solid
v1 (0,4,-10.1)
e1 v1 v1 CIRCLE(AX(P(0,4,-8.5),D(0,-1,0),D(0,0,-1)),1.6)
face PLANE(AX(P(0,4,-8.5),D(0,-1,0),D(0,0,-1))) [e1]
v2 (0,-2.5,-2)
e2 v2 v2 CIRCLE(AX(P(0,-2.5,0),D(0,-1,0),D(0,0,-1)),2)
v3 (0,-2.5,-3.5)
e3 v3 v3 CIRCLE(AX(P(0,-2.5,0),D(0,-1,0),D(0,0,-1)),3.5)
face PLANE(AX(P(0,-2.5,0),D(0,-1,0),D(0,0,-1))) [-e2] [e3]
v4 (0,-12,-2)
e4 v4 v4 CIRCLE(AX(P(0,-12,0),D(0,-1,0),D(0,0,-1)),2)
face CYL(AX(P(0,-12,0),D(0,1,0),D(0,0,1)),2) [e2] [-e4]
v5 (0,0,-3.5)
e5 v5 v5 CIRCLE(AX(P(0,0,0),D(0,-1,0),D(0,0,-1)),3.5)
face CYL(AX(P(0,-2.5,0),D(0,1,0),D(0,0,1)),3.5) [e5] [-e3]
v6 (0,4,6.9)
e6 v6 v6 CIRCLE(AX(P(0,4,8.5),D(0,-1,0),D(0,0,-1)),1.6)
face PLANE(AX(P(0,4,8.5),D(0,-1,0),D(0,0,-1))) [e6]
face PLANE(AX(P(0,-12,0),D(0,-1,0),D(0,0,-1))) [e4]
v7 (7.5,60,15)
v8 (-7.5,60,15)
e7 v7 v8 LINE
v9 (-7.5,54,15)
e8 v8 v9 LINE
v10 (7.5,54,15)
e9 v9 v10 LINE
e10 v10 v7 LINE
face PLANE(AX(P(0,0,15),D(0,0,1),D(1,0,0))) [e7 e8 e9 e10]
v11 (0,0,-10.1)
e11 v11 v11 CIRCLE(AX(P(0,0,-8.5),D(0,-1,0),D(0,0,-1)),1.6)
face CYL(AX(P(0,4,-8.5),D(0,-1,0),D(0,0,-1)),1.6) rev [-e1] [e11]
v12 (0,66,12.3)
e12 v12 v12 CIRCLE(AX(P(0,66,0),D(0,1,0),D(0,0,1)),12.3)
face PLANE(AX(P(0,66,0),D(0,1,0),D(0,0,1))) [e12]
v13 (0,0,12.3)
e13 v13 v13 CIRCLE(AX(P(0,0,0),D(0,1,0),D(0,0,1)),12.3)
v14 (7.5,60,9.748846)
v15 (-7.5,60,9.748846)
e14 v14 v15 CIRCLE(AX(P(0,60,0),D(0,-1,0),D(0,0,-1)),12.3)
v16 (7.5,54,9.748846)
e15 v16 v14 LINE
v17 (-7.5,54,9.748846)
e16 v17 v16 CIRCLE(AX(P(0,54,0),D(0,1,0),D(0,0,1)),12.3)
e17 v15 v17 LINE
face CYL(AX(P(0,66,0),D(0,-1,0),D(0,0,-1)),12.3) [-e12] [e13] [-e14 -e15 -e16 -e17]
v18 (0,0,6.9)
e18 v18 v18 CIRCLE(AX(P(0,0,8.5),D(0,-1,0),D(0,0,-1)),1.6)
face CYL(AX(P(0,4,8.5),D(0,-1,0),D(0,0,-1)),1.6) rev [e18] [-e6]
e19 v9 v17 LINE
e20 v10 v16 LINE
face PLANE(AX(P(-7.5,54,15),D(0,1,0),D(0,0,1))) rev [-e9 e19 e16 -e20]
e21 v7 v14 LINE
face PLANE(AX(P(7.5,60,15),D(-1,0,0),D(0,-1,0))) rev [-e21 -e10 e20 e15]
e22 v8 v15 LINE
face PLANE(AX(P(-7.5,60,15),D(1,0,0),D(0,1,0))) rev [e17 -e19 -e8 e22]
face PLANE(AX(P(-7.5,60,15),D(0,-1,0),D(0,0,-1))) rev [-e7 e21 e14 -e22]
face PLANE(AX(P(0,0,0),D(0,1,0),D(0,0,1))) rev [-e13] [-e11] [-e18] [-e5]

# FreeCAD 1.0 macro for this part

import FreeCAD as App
import Part
import Sketcher

V = App.Vector


def add_polygon(sketch, points):
    """Adds a closed chain of lines whose ends are joined by coincident constraints."""
    first, n = sketch.GeometryCount, len(points)
    for a, b in zip(points, points[1:] + points[:1]):
        sketch.addGeometry(Part.LineSegment(App.Vector(*a, 0), App.Vector(*b, 0)), False)
    for i in range(n):
        sketch.addConstraint(Sketcher.Constraint("Coincident", first + i, 2, first + (i + 1) % n, 1))

doc = App.newDocument("Part")
body = doc.addObject("PartDesign::Body", "Body")

sketch1 = body.newObject("Sketcher::SketchObject", "Sketch")
sketch1.AttachmentSupport = (doc.getObject("XZ_Plane"), [""])
sketch1.MapMode = "FlatFace"
sketch1.addGeometry(Part.Circle(V(0, 0, 0), V(0, 0, 1), 12), False)
sketch1.addConstraint([
    Sketcher.Constraint("Coincident", 0, 3, -1, 1),
    Sketcher.Constraint("Diameter", 0, 24.6),
])
pad1 = body.newObject("PartDesign::Pad", "Pad")
pad1.Profile = sketch1
pad1.Length = 66
pad1.Reversed = True

sketch2 = body.newObject("Sketcher::SketchObject", "Sketch001")
sketch2.AttachmentSupport = (doc.getObject("XY_Plane"), [""])
sketch2.MapMode = "FlatFace"
sketch2.AttachmentOffset = App.Placement(V(0, 0, 5), App.Rotation())
add_polygon(sketch2, [(-8, 60), (-8, 54), (8, 54), (8, 60)])
sketch2.addConstraint([
    Sketcher.Constraint("Vertical", 0),
    Sketcher.Constraint("Horizontal", 1),
    Sketcher.Constraint("Vertical", 2),
    Sketcher.Constraint("Horizontal", 3),
    Sketcher.Constraint("DistanceX", 1, 1, 1, 2, 15.0),
    Sketcher.Constraint("DistanceY", 0, 2, 0, 1, 6.0),
    Sketcher.Constraint("DistanceY", -1, 1, 0, 2, 54.0),
    Sketcher.Constraint("DistanceX", 0, 2, -1, 1, 7.5),
])
pad2 = body.newObject("PartDesign::Pad", "Pad001")
pad2.Profile = sketch2
pad2.Length = 10

sketch3 = body.newObject("Sketcher::SketchObject", "Sketch002")
sketch3.AttachmentSupport = (doc.getObject("XZ_Plane"), [""])
sketch3.MapMode = "FlatFace"
sketch3.addGeometry(Part.Circle(V(0, 0, 0), V(0, 0, 1), 3.5), False)
sketch3.addConstraint([
    Sketcher.Constraint("Coincident", 0, 3, -1, 1),
    Sketcher.Constraint("Diameter", 0, 7.0),
])
pad3 = body.newObject("PartDesign::Pad", "Pad002")
pad3.Profile = sketch3
pad3.Length = 2.5

sketch4 = body.newObject("Sketcher::SketchObject", "Sketch003")
sketch4.AttachmentSupport = (doc.getObject("XZ_Plane"), [""])
sketch4.MapMode = "FlatFace"
sketch4.AttachmentOffset = App.Placement(V(0, 0, 2.5), App.Rotation())
sketch4.addGeometry(Part.Circle(V(0, 0, 0), V(0, 0, 1), 2), False)
sketch4.addConstraint([
    Sketcher.Constraint("Coincident", 0, 3, -1, 1),
    Sketcher.Constraint("Diameter", 0, 4.0),
])
pad4 = body.newObject("PartDesign::Pad", "Pad003")
pad4.Profile = sketch4
pad4.Length = 9.5

sketch5 = body.newObject("Sketcher::SketchObject", "Sketch004")
sketch5.AttachmentSupport = (doc.getObject("XZ_Plane"), [""])
sketch5.MapMode = "FlatFace"
sketch5.addGeometry([
    Part.Circle(V(0, 8.5, 0), V(0, 0, 1), 1.6),
    Part.Circle(V(0, -8.5, 0), V(0, 0, 1), 1.6),
], False)
sketch5.addConstraint([
    Sketcher.Constraint("Equal", 0, 1),
    Sketcher.Constraint("Symmetric", 0, 3, 1, 3, -1, 1),
    Sketcher.Constraint("PointOnObject", 0, 3, -2),
    Sketcher.Constraint("Diameter", 0, 3.2),
    Sketcher.Constraint("DistanceY", 1, 3, 0, 3, 17.0),
])
pocket1 = body.newObject("PartDesign::Pocket", "Pocket")
pocket1.Profile = sketch5
pocket1.Length = 4

doc.recompute()
